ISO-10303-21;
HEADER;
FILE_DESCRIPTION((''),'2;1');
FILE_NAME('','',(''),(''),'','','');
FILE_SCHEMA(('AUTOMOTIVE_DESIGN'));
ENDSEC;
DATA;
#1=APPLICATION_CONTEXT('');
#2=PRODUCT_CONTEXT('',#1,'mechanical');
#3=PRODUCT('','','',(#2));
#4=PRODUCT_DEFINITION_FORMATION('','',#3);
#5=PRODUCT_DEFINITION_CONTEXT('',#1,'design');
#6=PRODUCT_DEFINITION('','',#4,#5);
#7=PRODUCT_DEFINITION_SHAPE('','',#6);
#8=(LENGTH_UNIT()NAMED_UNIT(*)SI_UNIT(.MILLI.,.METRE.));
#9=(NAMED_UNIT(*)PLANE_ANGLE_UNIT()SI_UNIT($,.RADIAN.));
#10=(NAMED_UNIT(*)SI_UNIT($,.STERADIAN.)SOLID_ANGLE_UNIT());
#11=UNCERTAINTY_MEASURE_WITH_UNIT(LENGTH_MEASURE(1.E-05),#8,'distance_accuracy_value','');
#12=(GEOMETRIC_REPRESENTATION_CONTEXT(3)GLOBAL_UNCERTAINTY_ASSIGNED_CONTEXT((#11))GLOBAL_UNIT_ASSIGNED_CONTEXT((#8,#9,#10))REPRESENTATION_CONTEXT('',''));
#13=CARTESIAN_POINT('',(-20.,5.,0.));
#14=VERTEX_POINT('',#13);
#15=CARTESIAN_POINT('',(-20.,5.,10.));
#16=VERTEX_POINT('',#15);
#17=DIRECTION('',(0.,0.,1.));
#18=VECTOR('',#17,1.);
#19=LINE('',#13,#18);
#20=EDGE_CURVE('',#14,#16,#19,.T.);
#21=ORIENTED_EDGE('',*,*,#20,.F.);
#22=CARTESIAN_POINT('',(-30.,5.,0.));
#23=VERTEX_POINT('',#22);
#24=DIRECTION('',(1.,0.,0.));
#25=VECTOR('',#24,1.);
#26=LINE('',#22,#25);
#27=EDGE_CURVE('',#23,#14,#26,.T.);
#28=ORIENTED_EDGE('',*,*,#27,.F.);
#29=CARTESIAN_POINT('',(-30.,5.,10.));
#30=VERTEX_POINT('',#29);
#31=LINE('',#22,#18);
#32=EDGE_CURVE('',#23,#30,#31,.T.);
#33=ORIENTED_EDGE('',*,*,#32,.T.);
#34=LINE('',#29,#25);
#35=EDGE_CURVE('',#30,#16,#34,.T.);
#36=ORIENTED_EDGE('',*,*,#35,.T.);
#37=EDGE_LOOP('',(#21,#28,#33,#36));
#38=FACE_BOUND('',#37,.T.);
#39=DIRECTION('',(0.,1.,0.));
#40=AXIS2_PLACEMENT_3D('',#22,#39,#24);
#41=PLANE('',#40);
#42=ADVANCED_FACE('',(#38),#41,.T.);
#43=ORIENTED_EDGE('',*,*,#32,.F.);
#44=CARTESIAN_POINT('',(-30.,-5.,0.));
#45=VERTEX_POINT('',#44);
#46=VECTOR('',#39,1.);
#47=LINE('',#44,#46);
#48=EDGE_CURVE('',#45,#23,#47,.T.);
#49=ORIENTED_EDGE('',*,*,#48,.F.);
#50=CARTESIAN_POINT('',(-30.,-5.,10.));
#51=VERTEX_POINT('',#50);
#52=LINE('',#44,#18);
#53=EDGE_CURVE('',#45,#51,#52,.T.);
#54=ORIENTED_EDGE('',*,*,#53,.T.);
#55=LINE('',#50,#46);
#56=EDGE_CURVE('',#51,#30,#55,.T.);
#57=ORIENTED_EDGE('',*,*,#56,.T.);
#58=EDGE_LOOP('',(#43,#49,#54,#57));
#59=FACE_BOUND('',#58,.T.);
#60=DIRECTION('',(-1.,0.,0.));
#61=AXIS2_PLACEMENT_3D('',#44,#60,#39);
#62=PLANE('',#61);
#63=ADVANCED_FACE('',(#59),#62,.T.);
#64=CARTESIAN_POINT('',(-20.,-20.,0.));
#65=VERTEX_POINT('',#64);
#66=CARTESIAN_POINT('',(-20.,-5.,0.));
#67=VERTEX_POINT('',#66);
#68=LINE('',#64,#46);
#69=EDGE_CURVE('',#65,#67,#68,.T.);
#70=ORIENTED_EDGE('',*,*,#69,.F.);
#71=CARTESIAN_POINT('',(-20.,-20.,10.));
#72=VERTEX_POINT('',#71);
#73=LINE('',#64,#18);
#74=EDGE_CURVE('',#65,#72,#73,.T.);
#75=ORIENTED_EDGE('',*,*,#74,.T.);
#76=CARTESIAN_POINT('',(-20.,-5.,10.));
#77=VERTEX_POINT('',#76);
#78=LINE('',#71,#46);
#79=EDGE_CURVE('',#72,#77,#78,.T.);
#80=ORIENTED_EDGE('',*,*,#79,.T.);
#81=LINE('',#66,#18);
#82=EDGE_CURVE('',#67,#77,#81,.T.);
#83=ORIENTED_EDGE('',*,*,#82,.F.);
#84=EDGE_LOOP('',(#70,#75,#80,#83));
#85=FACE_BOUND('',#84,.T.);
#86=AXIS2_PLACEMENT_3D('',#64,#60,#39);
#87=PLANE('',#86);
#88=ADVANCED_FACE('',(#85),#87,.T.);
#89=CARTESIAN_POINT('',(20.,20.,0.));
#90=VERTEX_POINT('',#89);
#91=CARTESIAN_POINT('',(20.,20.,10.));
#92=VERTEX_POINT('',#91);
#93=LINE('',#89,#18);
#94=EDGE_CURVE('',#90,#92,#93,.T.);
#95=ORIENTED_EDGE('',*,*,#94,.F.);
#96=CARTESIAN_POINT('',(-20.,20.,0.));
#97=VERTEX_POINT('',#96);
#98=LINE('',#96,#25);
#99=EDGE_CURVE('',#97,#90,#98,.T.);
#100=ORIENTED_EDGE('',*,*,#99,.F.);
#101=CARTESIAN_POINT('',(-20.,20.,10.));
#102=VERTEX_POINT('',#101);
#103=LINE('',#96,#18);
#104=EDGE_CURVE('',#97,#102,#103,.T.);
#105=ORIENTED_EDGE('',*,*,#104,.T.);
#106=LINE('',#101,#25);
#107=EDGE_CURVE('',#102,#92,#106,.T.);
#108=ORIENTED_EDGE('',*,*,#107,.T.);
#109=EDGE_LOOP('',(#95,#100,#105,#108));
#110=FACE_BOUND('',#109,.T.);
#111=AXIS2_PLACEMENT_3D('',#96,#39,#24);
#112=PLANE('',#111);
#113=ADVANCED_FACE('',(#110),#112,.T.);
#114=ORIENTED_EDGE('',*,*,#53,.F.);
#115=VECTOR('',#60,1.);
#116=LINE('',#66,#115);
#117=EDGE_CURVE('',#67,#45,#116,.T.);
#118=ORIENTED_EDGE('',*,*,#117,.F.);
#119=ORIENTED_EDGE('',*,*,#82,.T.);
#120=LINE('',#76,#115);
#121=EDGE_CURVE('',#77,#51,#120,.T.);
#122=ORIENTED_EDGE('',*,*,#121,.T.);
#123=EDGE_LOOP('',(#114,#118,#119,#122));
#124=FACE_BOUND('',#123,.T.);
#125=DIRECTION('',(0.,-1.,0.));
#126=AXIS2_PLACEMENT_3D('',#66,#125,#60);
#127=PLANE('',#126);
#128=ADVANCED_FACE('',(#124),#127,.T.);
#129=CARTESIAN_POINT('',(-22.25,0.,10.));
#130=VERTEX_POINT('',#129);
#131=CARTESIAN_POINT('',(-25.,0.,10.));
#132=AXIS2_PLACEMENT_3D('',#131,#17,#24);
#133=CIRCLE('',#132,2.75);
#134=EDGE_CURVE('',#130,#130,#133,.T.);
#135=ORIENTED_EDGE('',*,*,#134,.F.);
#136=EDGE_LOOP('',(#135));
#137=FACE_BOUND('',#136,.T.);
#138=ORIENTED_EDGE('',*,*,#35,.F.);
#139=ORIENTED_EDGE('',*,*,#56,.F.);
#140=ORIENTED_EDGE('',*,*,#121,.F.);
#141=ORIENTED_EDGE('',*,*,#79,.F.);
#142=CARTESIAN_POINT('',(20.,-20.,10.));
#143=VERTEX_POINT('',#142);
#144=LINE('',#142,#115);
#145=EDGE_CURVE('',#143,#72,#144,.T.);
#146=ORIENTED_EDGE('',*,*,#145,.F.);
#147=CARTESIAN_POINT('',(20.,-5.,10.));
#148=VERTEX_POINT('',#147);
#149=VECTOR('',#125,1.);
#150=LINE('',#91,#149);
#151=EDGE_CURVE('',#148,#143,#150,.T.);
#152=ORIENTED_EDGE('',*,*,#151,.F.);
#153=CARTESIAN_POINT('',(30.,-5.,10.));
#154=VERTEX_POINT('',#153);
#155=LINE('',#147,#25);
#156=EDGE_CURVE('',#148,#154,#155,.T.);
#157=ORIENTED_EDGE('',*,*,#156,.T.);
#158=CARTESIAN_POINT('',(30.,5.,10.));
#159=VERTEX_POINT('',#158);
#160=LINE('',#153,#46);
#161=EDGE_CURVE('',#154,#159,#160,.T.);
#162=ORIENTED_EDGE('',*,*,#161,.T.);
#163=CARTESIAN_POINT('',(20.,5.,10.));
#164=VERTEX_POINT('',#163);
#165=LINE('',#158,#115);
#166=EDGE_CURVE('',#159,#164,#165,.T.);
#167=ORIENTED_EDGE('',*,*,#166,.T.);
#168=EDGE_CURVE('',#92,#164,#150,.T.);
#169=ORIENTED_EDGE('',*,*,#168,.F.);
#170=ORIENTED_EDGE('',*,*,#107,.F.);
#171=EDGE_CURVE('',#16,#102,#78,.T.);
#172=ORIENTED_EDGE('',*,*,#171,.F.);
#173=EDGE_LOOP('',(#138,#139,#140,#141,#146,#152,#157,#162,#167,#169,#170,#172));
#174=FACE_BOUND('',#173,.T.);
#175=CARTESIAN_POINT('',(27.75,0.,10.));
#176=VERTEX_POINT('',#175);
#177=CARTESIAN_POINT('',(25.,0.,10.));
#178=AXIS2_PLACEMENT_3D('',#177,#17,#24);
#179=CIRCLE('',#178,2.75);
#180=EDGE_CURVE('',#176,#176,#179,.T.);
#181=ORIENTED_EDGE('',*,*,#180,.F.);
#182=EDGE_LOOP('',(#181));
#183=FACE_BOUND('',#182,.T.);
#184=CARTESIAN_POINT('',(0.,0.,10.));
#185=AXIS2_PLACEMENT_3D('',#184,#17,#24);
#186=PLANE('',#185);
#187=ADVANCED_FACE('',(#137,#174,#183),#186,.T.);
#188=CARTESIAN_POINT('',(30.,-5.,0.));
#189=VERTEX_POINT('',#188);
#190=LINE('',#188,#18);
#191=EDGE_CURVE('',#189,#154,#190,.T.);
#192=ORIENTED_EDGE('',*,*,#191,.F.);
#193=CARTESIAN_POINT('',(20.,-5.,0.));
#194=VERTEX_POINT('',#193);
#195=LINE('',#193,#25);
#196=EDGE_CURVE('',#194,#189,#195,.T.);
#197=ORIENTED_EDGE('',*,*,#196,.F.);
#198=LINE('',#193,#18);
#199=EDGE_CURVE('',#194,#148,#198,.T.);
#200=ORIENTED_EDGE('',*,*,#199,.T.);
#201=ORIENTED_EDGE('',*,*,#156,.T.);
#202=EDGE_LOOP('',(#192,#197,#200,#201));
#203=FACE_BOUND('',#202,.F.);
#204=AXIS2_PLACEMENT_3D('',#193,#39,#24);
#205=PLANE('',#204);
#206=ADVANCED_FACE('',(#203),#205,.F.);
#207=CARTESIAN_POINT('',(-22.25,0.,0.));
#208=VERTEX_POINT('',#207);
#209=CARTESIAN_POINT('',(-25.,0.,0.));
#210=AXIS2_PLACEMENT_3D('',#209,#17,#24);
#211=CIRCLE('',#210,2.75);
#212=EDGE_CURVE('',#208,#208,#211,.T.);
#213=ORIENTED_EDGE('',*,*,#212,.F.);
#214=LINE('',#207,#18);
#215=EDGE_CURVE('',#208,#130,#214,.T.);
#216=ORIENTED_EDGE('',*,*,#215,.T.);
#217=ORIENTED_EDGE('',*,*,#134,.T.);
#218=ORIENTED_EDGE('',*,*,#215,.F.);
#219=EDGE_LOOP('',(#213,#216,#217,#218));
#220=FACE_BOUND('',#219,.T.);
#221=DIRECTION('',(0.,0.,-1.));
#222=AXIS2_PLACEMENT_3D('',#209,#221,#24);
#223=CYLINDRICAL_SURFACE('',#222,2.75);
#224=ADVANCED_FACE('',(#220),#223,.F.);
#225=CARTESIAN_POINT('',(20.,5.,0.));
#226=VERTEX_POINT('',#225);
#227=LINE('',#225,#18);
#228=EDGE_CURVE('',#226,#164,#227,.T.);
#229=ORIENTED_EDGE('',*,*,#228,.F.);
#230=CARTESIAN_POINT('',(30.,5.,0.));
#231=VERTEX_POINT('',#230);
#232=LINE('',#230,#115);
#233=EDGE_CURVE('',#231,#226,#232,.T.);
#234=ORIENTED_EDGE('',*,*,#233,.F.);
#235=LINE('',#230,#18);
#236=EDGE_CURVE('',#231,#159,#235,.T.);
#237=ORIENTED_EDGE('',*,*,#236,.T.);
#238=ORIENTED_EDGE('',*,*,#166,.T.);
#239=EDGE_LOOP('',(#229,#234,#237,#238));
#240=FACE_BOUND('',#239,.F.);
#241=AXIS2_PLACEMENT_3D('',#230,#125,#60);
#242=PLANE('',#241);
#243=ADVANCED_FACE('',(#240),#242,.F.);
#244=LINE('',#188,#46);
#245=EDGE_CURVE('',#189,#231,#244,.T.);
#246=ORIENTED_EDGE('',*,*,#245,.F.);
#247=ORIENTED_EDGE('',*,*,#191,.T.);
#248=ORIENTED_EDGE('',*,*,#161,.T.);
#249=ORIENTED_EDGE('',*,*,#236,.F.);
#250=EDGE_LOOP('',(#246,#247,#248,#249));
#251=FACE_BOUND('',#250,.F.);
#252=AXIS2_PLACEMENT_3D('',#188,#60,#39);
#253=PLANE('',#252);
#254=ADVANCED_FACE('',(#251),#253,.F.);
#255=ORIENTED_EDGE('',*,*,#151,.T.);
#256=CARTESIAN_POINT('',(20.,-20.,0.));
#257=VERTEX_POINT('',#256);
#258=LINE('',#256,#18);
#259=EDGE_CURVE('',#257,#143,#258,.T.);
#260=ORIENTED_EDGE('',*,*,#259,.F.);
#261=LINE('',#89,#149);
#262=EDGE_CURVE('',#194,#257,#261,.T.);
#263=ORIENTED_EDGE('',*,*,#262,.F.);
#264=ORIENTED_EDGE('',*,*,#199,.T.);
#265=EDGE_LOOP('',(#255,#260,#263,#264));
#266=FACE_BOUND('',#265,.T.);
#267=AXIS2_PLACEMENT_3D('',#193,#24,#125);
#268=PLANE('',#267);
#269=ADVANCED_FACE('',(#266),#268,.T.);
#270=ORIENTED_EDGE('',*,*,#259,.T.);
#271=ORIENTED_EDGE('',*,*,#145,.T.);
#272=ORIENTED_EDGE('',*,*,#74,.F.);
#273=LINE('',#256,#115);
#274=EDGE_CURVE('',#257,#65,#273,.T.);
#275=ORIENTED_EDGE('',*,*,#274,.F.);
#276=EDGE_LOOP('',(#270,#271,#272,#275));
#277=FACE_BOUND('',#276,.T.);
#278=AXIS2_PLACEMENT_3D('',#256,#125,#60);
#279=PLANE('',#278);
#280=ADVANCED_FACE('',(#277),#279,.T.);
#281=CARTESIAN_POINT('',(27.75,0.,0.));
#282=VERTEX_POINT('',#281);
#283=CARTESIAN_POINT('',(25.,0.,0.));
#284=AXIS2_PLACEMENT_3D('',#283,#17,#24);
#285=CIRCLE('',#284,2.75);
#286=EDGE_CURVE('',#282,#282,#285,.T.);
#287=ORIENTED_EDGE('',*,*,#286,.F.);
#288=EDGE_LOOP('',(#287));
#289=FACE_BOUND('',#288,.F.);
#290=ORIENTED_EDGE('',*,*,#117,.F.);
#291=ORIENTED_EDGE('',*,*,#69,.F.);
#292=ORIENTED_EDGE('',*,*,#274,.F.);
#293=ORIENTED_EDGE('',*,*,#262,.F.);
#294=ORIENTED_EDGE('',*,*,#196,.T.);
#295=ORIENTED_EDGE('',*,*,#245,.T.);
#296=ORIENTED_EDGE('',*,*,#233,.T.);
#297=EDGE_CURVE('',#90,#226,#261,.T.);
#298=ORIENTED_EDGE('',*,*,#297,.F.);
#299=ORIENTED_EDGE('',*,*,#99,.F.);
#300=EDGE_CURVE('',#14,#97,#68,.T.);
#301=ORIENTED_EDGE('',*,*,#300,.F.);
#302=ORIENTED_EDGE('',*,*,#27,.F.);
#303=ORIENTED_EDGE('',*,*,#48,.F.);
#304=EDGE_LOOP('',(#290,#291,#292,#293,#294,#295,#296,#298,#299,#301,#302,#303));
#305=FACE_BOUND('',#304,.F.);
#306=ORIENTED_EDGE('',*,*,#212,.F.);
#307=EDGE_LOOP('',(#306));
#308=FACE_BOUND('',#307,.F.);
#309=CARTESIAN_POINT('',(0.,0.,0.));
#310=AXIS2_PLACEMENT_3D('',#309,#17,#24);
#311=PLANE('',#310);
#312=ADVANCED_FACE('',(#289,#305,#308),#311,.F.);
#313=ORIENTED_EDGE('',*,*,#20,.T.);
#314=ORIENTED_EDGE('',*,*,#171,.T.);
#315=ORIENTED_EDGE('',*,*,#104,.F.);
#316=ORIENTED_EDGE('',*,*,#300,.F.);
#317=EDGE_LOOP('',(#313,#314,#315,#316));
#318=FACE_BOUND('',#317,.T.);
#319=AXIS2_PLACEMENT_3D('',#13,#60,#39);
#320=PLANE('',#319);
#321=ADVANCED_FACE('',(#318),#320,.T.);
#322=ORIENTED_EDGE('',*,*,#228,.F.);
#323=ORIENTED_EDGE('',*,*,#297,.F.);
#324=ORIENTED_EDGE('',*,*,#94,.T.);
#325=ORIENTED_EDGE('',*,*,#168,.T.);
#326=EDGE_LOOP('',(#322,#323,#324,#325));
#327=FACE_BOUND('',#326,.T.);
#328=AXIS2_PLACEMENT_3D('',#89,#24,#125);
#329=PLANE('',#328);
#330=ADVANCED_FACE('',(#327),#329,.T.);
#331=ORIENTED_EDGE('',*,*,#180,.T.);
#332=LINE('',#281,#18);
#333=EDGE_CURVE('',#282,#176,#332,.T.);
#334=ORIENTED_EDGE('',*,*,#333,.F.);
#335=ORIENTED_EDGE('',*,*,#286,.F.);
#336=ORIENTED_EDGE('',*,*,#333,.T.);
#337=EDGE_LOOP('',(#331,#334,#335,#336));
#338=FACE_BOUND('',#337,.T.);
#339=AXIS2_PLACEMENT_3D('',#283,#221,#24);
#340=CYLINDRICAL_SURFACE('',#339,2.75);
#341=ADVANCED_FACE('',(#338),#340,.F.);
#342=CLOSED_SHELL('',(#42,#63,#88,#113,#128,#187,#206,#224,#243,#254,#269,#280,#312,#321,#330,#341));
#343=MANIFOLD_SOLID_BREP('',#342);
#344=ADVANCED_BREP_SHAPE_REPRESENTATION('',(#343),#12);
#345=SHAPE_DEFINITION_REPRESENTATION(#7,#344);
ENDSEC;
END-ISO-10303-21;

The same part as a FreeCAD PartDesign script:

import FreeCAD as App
import Part
import Sketcher
from FreeCAD import Vector


def add_polygon(sketch, points):
    """Adds a closed chain of lines whose ends are joined by coincident constraints."""
    first, n = sketch.GeometryCount, len(points)
    for a, b in zip(points, points[1:] + points[:1]):
        sketch.addGeometry(Part.LineSegment(App.Vector(*a, 0), App.Vector(*b, 0)), False)
    for i in range(n):
        sketch.addConstraint(Sketcher.Constraint("Coincident", first + i, 2, first + (i + 1) % n, 1))

doc = App.newDocument("Part")
body = doc.addObject("PartDesign::Body", "Body")

# Sketch on XY plane
sketch1 = body.newObject("Sketcher::SketchObject", "Sketch")
sketch1.AttachmentSupport = (doc.getObject("XY_Plane"), [""])
sketch1.MapMode = "FlatFace"
add_polygon(sketch1, [(20, 20), (-20, 20), (-20, 5), (-30, 5), (-30, -5), (-20, -5), (-20, -20), (20, -20), (20, -5), (30, -5), (30, 5), (20, 5)])  # lines 0-11
sketch1.addGeometry(Part.Circle(Vector(25, 0, 0), Vector(0, 0, 1), 2.8), False)  # 12
sketch1.addGeometry(Part.Circle(Vector(-25, 0, 0), Vector(0, 0, 1), 2.8), False)  # 13
sketch1.addConstraint(Sketcher.Constraint("Horizontal", 0))
sketch1.addConstraint(Sketcher.Constraint("Vertical", 1))
sketch1.addConstraint(Sketcher.Constraint("Horizontal", 2))
sketch1.addConstraint(Sketcher.Constraint("Vertical", 3))
sketch1.addConstraint(Sketcher.Constraint("Horizontal", 4))
sketch1.addConstraint(Sketcher.Constraint("Vertical", 5))
sketch1.addConstraint(Sketcher.Constraint("Horizontal", 6))
sketch1.addConstraint(Sketcher.Constraint("Vertical", 7))
sketch1.addConstraint(Sketcher.Constraint("Horizontal", 8))
sketch1.addConstraint(Sketcher.Constraint("Vertical", 9))
sketch1.addConstraint(Sketcher.Constraint("Horizontal", 10))
sketch1.addConstraint(Sketcher.Constraint("Vertical", 11))
sketch1.addConstraint(Sketcher.Constraint("Equal", 12, 13))
sketch1.addConstraint(Sketcher.Constraint("Symmetric", 12, 3, 13, 3, -1, 1))
sketch1.addConstraint(Sketcher.Constraint("Symmetric", 0, 2, 6, 2, -1, 1))
sketch1.addConstraint(Sketcher.Constraint("Symmetric", 2, 2, 8, 2, -1, 1))
sketch1.addConstraint(Sketcher.Constraint("Symmetric", 4, 2, 10, 2, -1, 1))
sketch1.addConstraint(Sketcher.Constraint("Symmetric", 4, 2, 7, 2, -2))
sketch1.addConstraint(Sketcher.Constraint("PointOnObject", 12, 3, -1))
sketch1.addConstraint(Sketcher.Constraint("Equal", 10, 3))
sketch1.addConstraint(Sketcher.Constraint("Diameter", 12, 5.5))
sketch1.addConstraint(Sketcher.Constraint("DistanceX", 0, 2, 0, 1, 40.0))
sketch1.addConstraint(Sketcher.Constraint("DistanceX", 2, 2, 2, 1, 10.0))
sketch1.addConstraint(Sketcher.Constraint("DistanceY", 1, 2, 1, 1, 15.0))
sketch1.addConstraint(Sketcher.Constraint("DistanceX", -1, 1, 12, 3, 25.0))
pad1 = body.newObject("PartDesign::Pad", "Pad")
pad1.Profile = sketch1
pad1.Length = 10

doc.recompute()
